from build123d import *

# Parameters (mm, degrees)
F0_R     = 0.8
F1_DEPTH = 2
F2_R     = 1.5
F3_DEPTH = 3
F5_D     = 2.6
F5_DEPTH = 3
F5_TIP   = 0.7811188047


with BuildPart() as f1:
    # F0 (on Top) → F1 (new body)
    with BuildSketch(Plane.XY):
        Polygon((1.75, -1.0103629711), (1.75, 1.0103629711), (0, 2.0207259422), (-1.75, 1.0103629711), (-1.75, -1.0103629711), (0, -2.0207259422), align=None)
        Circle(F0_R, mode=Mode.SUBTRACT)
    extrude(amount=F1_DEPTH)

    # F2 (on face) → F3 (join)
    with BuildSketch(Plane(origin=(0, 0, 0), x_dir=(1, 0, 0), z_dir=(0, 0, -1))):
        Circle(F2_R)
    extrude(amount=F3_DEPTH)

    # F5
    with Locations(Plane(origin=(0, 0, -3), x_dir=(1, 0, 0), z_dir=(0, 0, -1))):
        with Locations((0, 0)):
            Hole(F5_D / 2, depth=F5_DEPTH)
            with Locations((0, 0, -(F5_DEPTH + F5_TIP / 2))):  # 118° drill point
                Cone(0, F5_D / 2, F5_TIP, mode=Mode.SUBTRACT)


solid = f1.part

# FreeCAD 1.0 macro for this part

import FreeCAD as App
import Part
import Sketcher
Q = App.Units.Quantity

doc = App.newDocument("Part")
body = doc.addObject("PartDesign::Body", "Body")

# Sketch on XY plane
sketch1 = body.newObject("Sketcher::SketchObject", "Sketch")
sketch1.AttachmentSupport = (doc.getObject("XY_Plane"), [""])
sketch1.MapMode = "FlatFace"
sketch1.addGeometry([
    Part.LineSegment(App.Vector(1.75, -1.010363, 0), App.Vector(1.75, 1.010363, 0)),  # 0
    Part.LineSegment(App.Vector(1.75, 1.010363, 0), App.Vector(0, 2.020726, 0)),  # 1
    Part.LineSegment(App.Vector(0, 2.020726, 0), App.Vector(-1.75, 1.010363, 0)),  # 2
    Part.LineSegment(App.Vector(-1.75, 1.010363, 0), App.Vector(-1.75, -1.010363, 0)),  # 3
    Part.LineSegment(App.Vector(-1.75, -1.010363, 0), App.Vector(0, -2.020726, 0)),  # 4
    Part.LineSegment(App.Vector(0, -2.020726, 0), App.Vector(1.75, -1.010363, 0)),  # 5
    Part.Circle(App.Vector(0, 0, 0), App.Vector(0, 0, 1), 0.8),  # 6
], False)
sketch1.addConstraint([
    Sketcher.Constraint("Coincident", 0, 2, 1, 1),
    Sketcher.Constraint("Coincident", 1, 2, 2, 1),
    Sketcher.Constraint("Coincident", 2, 2, 3, 1),
    Sketcher.Constraint("Coincident", 3, 2, 4, 1),
    Sketcher.Constraint("Coincident", 4, 2, 5, 1),
    Sketcher.Constraint("Coincident", 5, 2, 0, 1),
    Sketcher.Constraint("Vertical", 0),
    Sketcher.Constraint("Vertical", 3),
    Sketcher.Constraint("Coincident", 6, 3, -1, 1),
    Sketcher.Constraint("Symmetric", 0, 2, 3, 2, -1, 1),
    Sketcher.Constraint("Symmetric", 1, 2, 4, 2, -1, 1),
    Sketcher.Constraint("PointOnObject", 1, 2, -2),
    Sketcher.Constraint("Parallel", 2, 5),
    Sketcher.Constraint("Horizontal", 0, 2, 2, 2),
    Sketcher.Constraint("Diameter", 6, 1.6),
    Sketcher.Constraint("Angle", 1, Q("150 deg")),
    Sketcher.Constraint("DistanceX", 2, 2, 0, 2, 3.5),
    Sketcher.Constraint("DistanceY", 0, 1, 0, 2, 2.020726),
])
pad1 = body.newObject("PartDesign::Pad", "Pad")
pad1.Profile = sketch1
pad1.Length = 2

# Sketch on XY plane
sketch2 = body.newObject("Sketcher::SketchObject", "Sketch001")
sketch2.AttachmentSupport = (doc.getObject("XY_Plane"), [""])
sketch2.MapMode = "FlatFace"
sketch2.addGeometry(Part.Circle(App.Vector(0, 0, 0), App.Vector(0, 0, 1), 1.5), False)
sketch2.addConstraint([
    Sketcher.Constraint("Coincident", 0, 3, -1, 1),
    Sketcher.Constraint("Diameter", 0, 3.0),
])
pad2 = body.newObject("PartDesign::Pad", "Pad001")
pad2.Profile = sketch2
pad2.Length = 3
pad2.Reversed = True

# Sketch on XY plane
sketch3 = body.newObject("Sketcher::SketchObject", "Sketch002")
sketch3.AttachmentSupport = (doc.getObject("XY_Plane"), [""])
sketch3.MapMode = "FlatFace"
sketch3.AttachmentOffset = App.Placement(App.Vector(0, 0, -3), App.Rotation())
sketch3.addGeometry(Part.Circle(App.Vector(0, 0, 0), App.Vector(0, 0, 1), 1.3), False)
sketch3.addConstraint([
    Sketcher.Constraint("Coincident", 0, 3, -1, 1),
    Sketcher.Constraint("Diameter", 0, 2.6),
])
doc.recompute()
hole = body.newObject("PartDesign::Hole", "Hole")
hole.Profile = sketch3
hole.ThreadType = "None"
hole.Diameter = 2.6
hole.DepthType = "Dimension"
hole.Depth = 3
hole.DrillPoint = "Angled"
hole.DrillPointAngle = 118
hole.Reversed = True

doc.recompute()
